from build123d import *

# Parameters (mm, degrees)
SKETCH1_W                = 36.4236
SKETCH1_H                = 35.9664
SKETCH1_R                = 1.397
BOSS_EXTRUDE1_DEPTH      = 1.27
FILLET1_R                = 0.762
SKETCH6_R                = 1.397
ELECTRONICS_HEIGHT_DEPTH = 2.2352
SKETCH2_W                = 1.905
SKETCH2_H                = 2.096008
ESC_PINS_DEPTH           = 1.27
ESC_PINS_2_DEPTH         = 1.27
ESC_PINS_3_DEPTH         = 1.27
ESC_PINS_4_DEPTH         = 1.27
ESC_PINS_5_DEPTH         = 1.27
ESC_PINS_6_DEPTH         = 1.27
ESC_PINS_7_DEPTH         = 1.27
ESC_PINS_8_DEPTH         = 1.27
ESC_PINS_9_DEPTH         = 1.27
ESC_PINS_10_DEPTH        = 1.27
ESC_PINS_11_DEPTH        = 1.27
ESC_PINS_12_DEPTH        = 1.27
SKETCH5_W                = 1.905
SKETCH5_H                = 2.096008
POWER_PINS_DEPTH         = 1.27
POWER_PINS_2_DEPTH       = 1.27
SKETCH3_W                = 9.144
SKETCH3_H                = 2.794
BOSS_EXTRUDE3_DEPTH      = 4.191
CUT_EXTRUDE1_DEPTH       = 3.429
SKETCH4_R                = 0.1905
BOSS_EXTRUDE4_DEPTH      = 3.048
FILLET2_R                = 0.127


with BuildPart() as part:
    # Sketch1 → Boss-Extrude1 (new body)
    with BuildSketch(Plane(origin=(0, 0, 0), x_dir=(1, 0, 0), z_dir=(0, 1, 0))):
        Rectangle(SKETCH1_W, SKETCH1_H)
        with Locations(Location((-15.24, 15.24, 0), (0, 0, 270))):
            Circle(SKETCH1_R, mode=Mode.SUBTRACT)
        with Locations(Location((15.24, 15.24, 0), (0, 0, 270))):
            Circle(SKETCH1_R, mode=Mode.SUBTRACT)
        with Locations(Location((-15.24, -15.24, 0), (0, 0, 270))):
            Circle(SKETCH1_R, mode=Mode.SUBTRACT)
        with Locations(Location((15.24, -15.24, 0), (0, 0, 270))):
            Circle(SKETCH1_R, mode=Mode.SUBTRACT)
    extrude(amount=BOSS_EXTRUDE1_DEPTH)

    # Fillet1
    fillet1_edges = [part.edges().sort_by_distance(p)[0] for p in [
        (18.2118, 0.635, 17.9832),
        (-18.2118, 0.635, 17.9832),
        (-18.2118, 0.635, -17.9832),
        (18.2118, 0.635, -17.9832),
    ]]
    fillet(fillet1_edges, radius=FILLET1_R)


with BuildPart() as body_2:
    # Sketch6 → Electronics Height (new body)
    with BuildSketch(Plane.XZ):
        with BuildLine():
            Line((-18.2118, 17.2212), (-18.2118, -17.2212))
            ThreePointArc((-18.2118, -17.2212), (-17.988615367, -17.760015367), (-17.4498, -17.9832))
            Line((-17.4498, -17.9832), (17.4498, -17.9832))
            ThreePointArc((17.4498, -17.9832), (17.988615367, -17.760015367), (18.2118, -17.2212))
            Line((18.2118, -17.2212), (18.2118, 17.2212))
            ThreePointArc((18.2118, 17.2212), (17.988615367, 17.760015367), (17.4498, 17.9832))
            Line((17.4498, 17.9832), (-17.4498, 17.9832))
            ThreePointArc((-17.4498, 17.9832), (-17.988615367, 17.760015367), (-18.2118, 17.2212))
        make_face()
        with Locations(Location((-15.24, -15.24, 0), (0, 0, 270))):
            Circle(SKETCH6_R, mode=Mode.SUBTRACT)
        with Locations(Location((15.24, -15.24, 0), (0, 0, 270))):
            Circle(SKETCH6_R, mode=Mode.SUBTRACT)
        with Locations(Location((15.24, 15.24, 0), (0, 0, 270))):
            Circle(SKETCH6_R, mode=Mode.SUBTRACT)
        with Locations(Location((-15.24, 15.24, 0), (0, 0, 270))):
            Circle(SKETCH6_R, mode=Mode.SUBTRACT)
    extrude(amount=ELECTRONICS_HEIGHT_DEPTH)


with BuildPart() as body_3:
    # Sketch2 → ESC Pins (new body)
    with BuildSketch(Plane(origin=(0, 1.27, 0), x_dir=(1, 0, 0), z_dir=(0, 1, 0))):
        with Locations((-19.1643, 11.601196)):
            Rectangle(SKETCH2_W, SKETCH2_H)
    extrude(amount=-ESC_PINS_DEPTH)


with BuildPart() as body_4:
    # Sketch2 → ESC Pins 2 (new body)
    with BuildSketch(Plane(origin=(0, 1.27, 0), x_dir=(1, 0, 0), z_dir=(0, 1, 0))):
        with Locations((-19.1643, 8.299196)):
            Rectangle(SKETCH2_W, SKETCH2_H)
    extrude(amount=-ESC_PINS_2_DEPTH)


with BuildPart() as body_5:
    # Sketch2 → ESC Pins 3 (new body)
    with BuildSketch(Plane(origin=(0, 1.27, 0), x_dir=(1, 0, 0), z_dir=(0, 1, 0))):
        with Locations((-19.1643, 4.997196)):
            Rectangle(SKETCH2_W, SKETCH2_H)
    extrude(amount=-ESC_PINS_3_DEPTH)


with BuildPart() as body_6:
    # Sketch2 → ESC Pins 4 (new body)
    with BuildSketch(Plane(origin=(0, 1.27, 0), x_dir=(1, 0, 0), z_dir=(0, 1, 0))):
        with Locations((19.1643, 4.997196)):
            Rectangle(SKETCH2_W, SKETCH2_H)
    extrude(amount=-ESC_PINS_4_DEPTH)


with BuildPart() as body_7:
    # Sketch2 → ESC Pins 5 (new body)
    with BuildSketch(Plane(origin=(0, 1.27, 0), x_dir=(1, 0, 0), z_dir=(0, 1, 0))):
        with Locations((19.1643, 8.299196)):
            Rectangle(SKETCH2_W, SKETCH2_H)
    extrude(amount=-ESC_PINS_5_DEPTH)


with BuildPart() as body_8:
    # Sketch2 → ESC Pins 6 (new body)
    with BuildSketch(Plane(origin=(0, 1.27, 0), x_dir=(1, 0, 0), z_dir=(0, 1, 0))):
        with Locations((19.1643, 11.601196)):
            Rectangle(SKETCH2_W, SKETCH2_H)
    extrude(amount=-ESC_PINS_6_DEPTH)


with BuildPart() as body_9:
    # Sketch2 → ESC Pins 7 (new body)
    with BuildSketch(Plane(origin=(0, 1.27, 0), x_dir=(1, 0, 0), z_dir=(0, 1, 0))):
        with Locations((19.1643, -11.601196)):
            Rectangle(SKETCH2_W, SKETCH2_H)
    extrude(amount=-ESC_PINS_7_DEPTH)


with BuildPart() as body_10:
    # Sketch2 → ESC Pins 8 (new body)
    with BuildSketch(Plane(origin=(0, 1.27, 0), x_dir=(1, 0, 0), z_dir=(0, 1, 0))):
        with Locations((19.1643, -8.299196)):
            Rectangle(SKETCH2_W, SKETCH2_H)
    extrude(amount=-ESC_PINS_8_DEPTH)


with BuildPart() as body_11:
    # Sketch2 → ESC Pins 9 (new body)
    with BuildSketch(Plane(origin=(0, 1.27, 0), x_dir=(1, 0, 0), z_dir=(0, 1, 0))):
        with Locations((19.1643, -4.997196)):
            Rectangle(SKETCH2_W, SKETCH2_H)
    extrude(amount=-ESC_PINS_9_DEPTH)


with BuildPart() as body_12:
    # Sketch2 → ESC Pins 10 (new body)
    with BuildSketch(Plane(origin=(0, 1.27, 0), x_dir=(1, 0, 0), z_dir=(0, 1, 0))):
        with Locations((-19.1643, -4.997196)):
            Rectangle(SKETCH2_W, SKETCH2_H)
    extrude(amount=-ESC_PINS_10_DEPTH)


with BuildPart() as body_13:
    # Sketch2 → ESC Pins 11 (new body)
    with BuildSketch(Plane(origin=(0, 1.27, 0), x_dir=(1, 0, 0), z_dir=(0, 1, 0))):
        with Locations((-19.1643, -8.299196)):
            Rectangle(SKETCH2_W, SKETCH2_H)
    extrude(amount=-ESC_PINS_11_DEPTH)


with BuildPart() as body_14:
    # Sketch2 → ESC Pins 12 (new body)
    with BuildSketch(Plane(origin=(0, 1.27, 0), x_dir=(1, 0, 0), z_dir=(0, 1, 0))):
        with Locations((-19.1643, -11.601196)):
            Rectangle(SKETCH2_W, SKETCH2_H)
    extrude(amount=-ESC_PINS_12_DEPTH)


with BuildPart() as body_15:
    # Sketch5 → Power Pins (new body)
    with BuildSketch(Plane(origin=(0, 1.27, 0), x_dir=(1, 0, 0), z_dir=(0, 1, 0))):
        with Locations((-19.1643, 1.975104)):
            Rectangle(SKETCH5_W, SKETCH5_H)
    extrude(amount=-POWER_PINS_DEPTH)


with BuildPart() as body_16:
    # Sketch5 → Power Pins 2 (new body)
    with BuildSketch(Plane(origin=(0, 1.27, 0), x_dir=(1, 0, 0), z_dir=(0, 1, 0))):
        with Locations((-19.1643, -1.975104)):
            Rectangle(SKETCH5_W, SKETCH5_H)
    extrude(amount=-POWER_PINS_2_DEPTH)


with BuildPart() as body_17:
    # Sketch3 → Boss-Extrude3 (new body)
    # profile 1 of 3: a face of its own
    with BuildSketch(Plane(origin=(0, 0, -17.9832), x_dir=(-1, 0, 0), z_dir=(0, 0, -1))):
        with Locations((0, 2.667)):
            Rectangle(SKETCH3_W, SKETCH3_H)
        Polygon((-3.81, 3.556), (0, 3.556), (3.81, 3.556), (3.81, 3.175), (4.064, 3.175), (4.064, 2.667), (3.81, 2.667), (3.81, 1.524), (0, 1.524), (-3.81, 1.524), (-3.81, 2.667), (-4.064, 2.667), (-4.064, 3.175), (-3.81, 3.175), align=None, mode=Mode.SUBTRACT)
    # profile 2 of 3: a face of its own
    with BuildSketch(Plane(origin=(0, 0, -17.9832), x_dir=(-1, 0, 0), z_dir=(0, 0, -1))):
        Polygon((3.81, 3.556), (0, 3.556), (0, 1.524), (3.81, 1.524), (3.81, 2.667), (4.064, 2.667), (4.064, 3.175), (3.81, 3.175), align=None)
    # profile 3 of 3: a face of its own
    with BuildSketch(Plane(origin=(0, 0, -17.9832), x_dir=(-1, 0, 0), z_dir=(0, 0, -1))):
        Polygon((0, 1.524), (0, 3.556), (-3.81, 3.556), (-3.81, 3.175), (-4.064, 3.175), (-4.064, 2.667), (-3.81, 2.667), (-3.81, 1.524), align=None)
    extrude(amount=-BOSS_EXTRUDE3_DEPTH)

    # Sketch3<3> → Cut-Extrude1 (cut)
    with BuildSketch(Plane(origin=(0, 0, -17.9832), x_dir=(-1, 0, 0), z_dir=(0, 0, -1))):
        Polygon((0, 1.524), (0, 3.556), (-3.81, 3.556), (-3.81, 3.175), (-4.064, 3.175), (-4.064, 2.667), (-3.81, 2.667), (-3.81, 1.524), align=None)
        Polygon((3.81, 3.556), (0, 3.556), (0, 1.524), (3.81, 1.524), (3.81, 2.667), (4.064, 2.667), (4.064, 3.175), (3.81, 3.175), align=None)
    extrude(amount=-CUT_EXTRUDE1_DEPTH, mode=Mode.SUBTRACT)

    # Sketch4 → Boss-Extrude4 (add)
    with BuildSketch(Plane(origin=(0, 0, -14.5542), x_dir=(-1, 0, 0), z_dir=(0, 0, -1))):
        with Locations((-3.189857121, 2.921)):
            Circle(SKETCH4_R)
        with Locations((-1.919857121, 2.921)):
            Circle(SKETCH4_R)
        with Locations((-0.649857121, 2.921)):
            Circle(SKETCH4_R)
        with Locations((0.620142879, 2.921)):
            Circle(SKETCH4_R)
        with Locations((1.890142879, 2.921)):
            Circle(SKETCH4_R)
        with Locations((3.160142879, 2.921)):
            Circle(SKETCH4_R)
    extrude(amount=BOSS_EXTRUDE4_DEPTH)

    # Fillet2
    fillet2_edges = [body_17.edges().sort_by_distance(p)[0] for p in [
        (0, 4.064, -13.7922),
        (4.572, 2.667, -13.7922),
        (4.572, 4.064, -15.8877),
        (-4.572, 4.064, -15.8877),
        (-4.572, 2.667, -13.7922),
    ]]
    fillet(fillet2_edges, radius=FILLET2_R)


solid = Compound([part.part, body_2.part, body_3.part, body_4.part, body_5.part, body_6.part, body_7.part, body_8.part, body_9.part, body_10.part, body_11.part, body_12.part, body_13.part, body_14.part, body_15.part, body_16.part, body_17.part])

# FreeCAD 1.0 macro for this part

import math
import FreeCAD as App
import Part
import Sketcher
Q = App.Units.Quantity


def edges_at(feature, points):
    """Names of the edges that pass closest to the given points."""
    edges = feature.Shape.Edges
    near = lambda p: min(range(len(edges)), key=lambda i: edges[i].distToShape(Part.Vertex(*p))[0])
    return sorted({f"Edge{near(p) + 1}" for p in points})


def add_polygon(sketch, points):
    """Adds a closed chain of lines whose ends are joined by coincident constraints."""
    first, n = sketch.GeometryCount, len(points)
    for a, b in zip(points, points[1:] + points[:1]):
        sketch.addGeometry(Part.LineSegment(App.Vector(*a, 0), App.Vector(*b, 0)), False)
    for i in range(n):
        sketch.addConstraint(Sketcher.Constraint("Coincident", first + i, 2, first + (i + 1) % n, 1))

doc = App.newDocument("Part")
body = doc.addObject("PartDesign::Body", "Body")

# Sketch on XZ plane
sketch1 = body.newObject("Sketcher::SketchObject", "Sketch")
sketch1.AttachmentSupport = (doc.getObject("XZ_Plane"), [""])
sketch1.MapMode = "FlatFace"
add_polygon(sketch1, [(-18.2, -18), (-18.2, 18), (18.2, 18), (18.2, -18)])  # lines 0-3
sketch1.addGeometry(Part.Circle(App.Vector(-15.2, 15.2, 0), App.Vector(0, 0, 1), 1.4), False)  # 4
sketch1.addGeometry(Part.Circle(App.Vector(15.2, 15.2, 0), App.Vector(0, 0, 1), 1.4), False)  # 5
sketch1.addGeometry(Part.Circle(App.Vector(-15.2, -15.2, 0), App.Vector(0, 0, 1), 1.4), False)  # 6
sketch1.addGeometry(Part.Circle(App.Vector(15.2, -15.2, 0), App.Vector(0, 0, 1), 1.4), False)  # 7
sketch1.addConstraint(Sketcher.Constraint("Vertical", 0))
sketch1.addConstraint(Sketcher.Constraint("Horizontal", 1))
sketch1.addConstraint(Sketcher.Constraint("Vertical", 2))
sketch1.addConstraint(Sketcher.Constraint("Horizontal", 3))
sketch1.addConstraint(Sketcher.Constraint("Equal", 4, 5))
sketch1.addConstraint(Sketcher.Constraint("Equal", 5, 6))
sketch1.addConstraint(Sketcher.Constraint("Equal", 6, 7))
sketch1.addConstraint(Sketcher.Constraint("Symmetric", 5, 3, 6, 3, -1, 1))
sketch1.addConstraint(Sketcher.Constraint("Symmetric", 4, 3, 7, 3, -1, 1))
sketch1.addConstraint(Sketcher.Constraint("Symmetric", 0, 2, 2, 2, -1, 1))
sketch1.addConstraint(Sketcher.Constraint("Symmetric", 4, 3, 5, 3, -2))
sketch1.addConstraint(Sketcher.Constraint("Diameter", 4, Q("0.11 in")))
sketch1.addConstraint(Sketcher.Constraint("DistanceX", 4, 3, -1, 1, Q("0.6 in")))
sketch1.addConstraint(Sketcher.Constraint("DistanceY", -1, 1, 4, 3, Q("0.6 in")))
sketch1.addConstraint(Sketcher.Constraint("DistanceX", 1, 1, 1, 2, Q("1.434 in")))
sketch1.addConstraint(Sketcher.Constraint("DistanceY", 0, 1, 0, 2, Q("1.416 in")))
pad1 = body.newObject("PartDesign::Pad", "Pad")
pad1.Profile = sketch1
pad1.Length = Q("0.05 in")
pad1.Reversed = True
doc.recompute()

fillet = body.newObject("PartDesign::Fillet", "Fillet")
fillet.Base = (pad1, edges_at(pad1, [
    (18.212, 0.635, 17.983),
    (-18.212, 0.635, 17.983),
    (-18.212, 0.635, -17.983),
    (18.212, 0.635, -17.983),
]))
fillet.Radius = Q("0.03 in")
body2 = doc.addObject("PartDesign::Body", "Body001")

# Sketch on XZ plane
sketch2 = body2.newObject("Sketcher::SketchObject", "Sketch001")
sketch2.AttachmentSupport = (doc.getObject("XZ_Plane001"), [""])
sketch2.MapMode = "FlatFace"
sketch2.addGeometry(Part.LineSegment(App.Vector(-18.2, 17.2, 0), App.Vector(-18.2, -17.2, 0)), False)
sketch2.addGeometry(Part.ArcOfCircle(Part.Circle(App.Vector(-17.4, -17.2, 0), App.Vector(0, 0, 1), 0.8), math.radians(-180), math.radians(-90)), False)
sketch2.addGeometry(Part.LineSegment(App.Vector(-17.4, -18, 0), App.Vector(17.4, -18, 0)), False)
sketch2.addGeometry(Part.ArcOfCircle(Part.Circle(App.Vector(17.4, -17.2, 0), App.Vector(0, 0, 1), 0.8), math.radians(-90), math.radians(0)), False)
sketch2.addGeometry(Part.LineSegment(App.Vector(18.2, -17.2, 0), App.Vector(18.2, 17.2, 0)), False)
sketch2.addGeometry(Part.ArcOfCircle(Part.Circle(App.Vector(17.4, 17.2, 0), App.Vector(0, 0, 1), 0.8), math.radians(0), math.radians(90)), False)
sketch2.addGeometry(Part.LineSegment(App.Vector(17.4, 18, 0), App.Vector(-17.4, 18, 0)), False)
sketch2.addGeometry(Part.ArcOfCircle(Part.Circle(App.Vector(-17.4, 17.2, 0), App.Vector(0, 0, 1), 0.8), math.radians(90), math.radians(180)), False)
sketch2.addGeometry(Part.Circle(App.Vector(-15.2, -15.2, 0), App.Vector(0, 0, 1), 1.4), False)
sketch2.addGeometry(Part.Circle(App.Vector(15.2, -15.2, 0), App.Vector(0, 0, 1), 1.4), False)
sketch2.addGeometry(Part.Circle(App.Vector(-15.2, 15.2, 0), App.Vector(0, 0, 1), 1.4), False)
sketch2.addGeometry(Part.Circle(App.Vector(15.2, 15.2, 0), App.Vector(0, 0, 1), 1.4), False)
sketch2.addConstraint(Sketcher.Constraint("Tangent", 0, 2, 1, 1))
sketch2.addConstraint(Sketcher.Constraint("Tangent", 1, 2, 2, 1))
sketch2.addConstraint(Sketcher.Constraint("Tangent", 2, 2, 3, 1))
sketch2.addConstraint(Sketcher.Constraint("Tangent", 3, 2, 4, 1))
sketch2.addConstraint(Sketcher.Constraint("Tangent", 4, 2, 5, 1))
sketch2.addConstraint(Sketcher.Constraint("Tangent", 5, 2, 6, 1))
sketch2.addConstraint(Sketcher.Constraint("Tangent", 6, 2, 7, 1))
sketch2.addConstraint(Sketcher.Constraint("Tangent", 7, 2, 0, 1))
sketch2.addConstraint(Sketcher.Constraint("Vertical", 0))
sketch2.addConstraint(Sketcher.Constraint("Horizontal", 2))
sketch2.addConstraint(Sketcher.Constraint("Vertical", 4))
sketch2.addConstraint(Sketcher.Constraint("Horizontal", 6))
sketch2.addConstraint(Sketcher.Constraint("Equal", 1, 3))
sketch2.addConstraint(Sketcher.Constraint("Equal", 3, 5))
sketch2.addConstraint(Sketcher.Constraint("Equal", 5, 7))
sketch2.addConstraint(Sketcher.Constraint("Equal", 8, 9))
sketch2.addConstraint(Sketcher.Constraint("Equal", 9, 10))
sketch2.addConstraint(Sketcher.Constraint("Equal", 10, 11))
sketch2.addConstraint(Sketcher.Constraint("Symmetric", 1, 3, 5, 3, -1, 1))
sketch2.addConstraint(Sketcher.Constraint("Symmetric", 9, 3, 10, 3, -1, 1))
sketch2.addConstraint(Sketcher.Constraint("Symmetric", 8, 3, 11, 3, -1, 1))
sketch2.addConstraint(Sketcher.Constraint("Symmetric", 8, 3, 9, 3, -2))
sketch2.addConstraint(Sketcher.Constraint("Diameter", 8, Q("0.11 in")))
sketch2.addConstraint(Sketcher.Constraint("Radius", 1, Q("0.03 in")))
sketch2.addConstraint(Sketcher.Constraint("DistanceX", 8, 3, -1, 1, Q("0.6 in")))
sketch2.addConstraint(Sketcher.Constraint("DistanceY", 8, 3, -1, 1, Q("0.6 in")))
sketch2.addConstraint(Sketcher.Constraint("DistanceX", 2, 1, 2, 2, Q("1.374 in")))
sketch2.addConstraint(Sketcher.Constraint("DistanceY", 0, 2, 0, 1, Q("1.356 in")))
pad2 = body2.newObject("PartDesign::Pad", "Pad001")
pad2.Profile = sketch2
pad2.Length = Q("0.088 in")
body3 = doc.addObject("PartDesign::Body", "Body002")

# Sketch on XZ plane
sketch3 = body3.newObject("Sketcher::SketchObject", "Sketch002")
sketch3.AttachmentSupport = (doc.getObject("XZ_Plane002"), [""])
sketch3.MapMode = "FlatFace"
sketch3.AttachmentOffset = App.Placement(App.Vector(0, 0, -0.05 * 25.4), App.Rotation())
add_polygon(sketch3, [(-20.1, -12.6), (-20.1, -10.6), (-18.2, -10.6), (-18.2, -12.6)])  # lines 0-3
sketch3.addConstraint(Sketcher.Constraint("Vertical", 0))
sketch3.addConstraint(Sketcher.Constraint("Horizontal", 1))
sketch3.addConstraint(Sketcher.Constraint("Vertical", 2))
sketch3.addConstraint(Sketcher.Constraint("Horizontal", 3))
sketch3.addConstraint(Sketcher.Constraint("DistanceX", 1, 1, 1, 2, Q("0.075 in")))
sketch3.addConstraint(Sketcher.Constraint("DistanceX", 0, 2, -1, 1, Q("0.792 in")))
sketch3.addConstraint(Sketcher.Constraint("DistanceY", 2, 2, -1, 1, Q("0.498 in")))
sketch3.addConstraint(Sketcher.Constraint("DistanceY", 0, 1, 0, 2, 2.096008))
pad3 = body3.newObject("PartDesign::Pad", "Pad002")
pad3.Profile = sketch3
pad3.Length = Q("0.05 in")
body4 = doc.addObject("PartDesign::Body", "Body003")

# Sketch on XZ plane
sketch4 = body4.newObject("Sketcher::SketchObject", "Sketch003")
sketch4.AttachmentSupport = (doc.getObject("XZ_Plane003"), [""])
sketch4.MapMode = "FlatFace"
sketch4.AttachmentOffset = App.Placement(App.Vector(0, 0, -0.05 * 25.4), App.Rotation())
add_polygon(sketch4, [(-20.1, -9.3), (-20.1, -7.3), (-18.2, -7.3), (-18.2, -9.3)])  # lines 0-3
sketch4.addConstraint(Sketcher.Constraint("Vertical", 0))
sketch4.addConstraint(Sketcher.Constraint("Horizontal", 1))
sketch4.addConstraint(Sketcher.Constraint("Vertical", 2))
sketch4.addConstraint(Sketcher.Constraint("Horizontal", 3))
sketch4.addConstraint(Sketcher.Constraint("DistanceX", 1, 1, 1, 2, Q("0.075 in")))
sketch4.addConstraint(Sketcher.Constraint("DistanceX", 0, 2, -1, 1, Q("0.792 in")))
sketch4.addConstraint(Sketcher.Constraint("DistanceY", 2, 2, -1, 1, Q("0.368 in")))
sketch4.addConstraint(Sketcher.Constraint("DistanceY", 0, 1, 0, 2, 2.096008))
pad4 = body4.newObject("PartDesign::Pad", "Pad003")
pad4.Profile = sketch4
pad4.Length = Q("0.05 in")
body5 = doc.addObject("PartDesign::Body", "Body004")

# Sketch on XZ plane
sketch5 = body5.newObject("Sketcher::SketchObject", "Sketch004")
sketch5.AttachmentSupport = (doc.getObject("XZ_Plane004"), [""])
sketch5.MapMode = "FlatFace"
sketch5.AttachmentOffset = App.Placement(App.Vector(0, 0, -0.05 * 25.4), App.Rotation())
add_polygon(sketch5, [(-20.1, -6), (-20.1, -3.9), (-18.2, -3.9), (-18.2, -6)])  # lines 0-3
sketch5.addConstraint(Sketcher.Constraint("Vertical", 0))
sketch5.addConstraint(Sketcher.Constraint("Horizontal", 1))
sketch5.addConstraint(Sketcher.Constraint("Vertical", 2))
sketch5.addConstraint(Sketcher.Constraint("Horizontal", 3))
sketch5.addConstraint(Sketcher.Constraint("DistanceX", 1, 1, 1, 2, Q("0.075 in")))
sketch5.addConstraint(Sketcher.Constraint("DistanceX", 0, 2, -1, 1, Q("0.792 in")))
sketch5.addConstraint(Sketcher.Constraint("DistanceY", 2, 2, -1, 1, Q("0.238 in")))
sketch5.addConstraint(Sketcher.Constraint("DistanceY", 0, 1, 0, 2, 2.096008))
pad5 = body5.newObject("PartDesign::Pad", "Pad004")
pad5.Profile = sketch5
pad5.Length = Q("0.05 in")
body6 = doc.addObject("PartDesign::Body", "Body005")

# Sketch on XZ plane
sketch6 = body6.newObject("Sketcher::SketchObject", "Sketch005")
sketch6.AttachmentSupport = (doc.getObject("XZ_Plane005"), [""])
sketch6.MapMode = "FlatFace"
sketch6.AttachmentOffset = App.Placement(App.Vector(0, 0, -0.05 * 25.4), App.Rotation())
add_polygon(sketch6, [(18.2, -6), (18.2, -3.9), (20.1, -3.9), (20.1, -6)])  # lines 0-3
sketch6.addConstraint(Sketcher.Constraint("Vertical", 0))
sketch6.addConstraint(Sketcher.Constraint("Horizontal", 1))
sketch6.addConstraint(Sketcher.Constraint("Vertical", 2))
sketch6.addConstraint(Sketcher.Constraint("Horizontal", 3))
sketch6.addConstraint(Sketcher.Constraint("DistanceX", 1, 1, 1, 2, Q("0.075 in")))
sketch6.addConstraint(Sketcher.Constraint("DistanceX", -1, 1, 0, 2, Q("0.717 in")))
sketch6.addConstraint(Sketcher.Constraint("DistanceY", 2, 2, -1, 1, Q("0.238 in")))
sketch6.addConstraint(Sketcher.Constraint("DistanceY", 0, 1, 0, 2, 2.096008))
pad6 = body6.newObject("PartDesign::Pad", "Pad005")
pad6.Profile = sketch6
pad6.Length = Q("0.05 in")
body7 = doc.addObject("PartDesign::Body", "Body006")

# Sketch on XZ plane
sketch7 = body7.newObject("Sketcher::SketchObject", "Sketch006")
sketch7.AttachmentSupport = (doc.getObject("XZ_Plane006"), [""])
sketch7.MapMode = "FlatFace"
sketch7.AttachmentOffset = App.Placement(App.Vector(0, 0, -0.05 * 25.4), App.Rotation())
add_polygon(sketch7, [(18.2, -9.3), (18.2, -7.3), (20.1, -7.3), (20.1, -9.3)])  # lines 0-3
sketch7.addConstraint(Sketcher.Constraint("Vertical", 0))
sketch7.addConstraint(Sketcher.Constraint("Horizontal", 1))
sketch7.addConstraint(Sketcher.Constraint("Vertical", 2))
sketch7.addConstraint(Sketcher.Constraint("Horizontal", 3))
sketch7.addConstraint(Sketcher.Constraint("DistanceX", 1, 1, 1, 2, Q("0.075 in")))
sketch7.addConstraint(Sketcher.Constraint("DistanceX", -1, 1, 0, 2, Q("0.717 in")))
sketch7.addConstraint(Sketcher.Constraint("DistanceY", 2, 2, -1, 1, Q("0.368 in")))
sketch7.addConstraint(Sketcher.Constraint("DistanceY", 0, 1, 0, 2, 2.096008))
pad7 = body7.newObject("PartDesign::Pad", "Pad006")
pad7.Profile = sketch7
pad7.Length = Q("0.05 in")
body8 = doc.addObject("PartDesign::Body", "Body007")

# Sketch on XZ plane
sketch8 = body8.newObject("Sketcher::SketchObject", "Sketch007")
sketch8.AttachmentSupport = (doc.getObject("XZ_Plane007"), [""])
sketch8.MapMode = "FlatFace"
sketch8.AttachmentOffset = App.Placement(App.Vector(0, 0, -0.05 * 25.4), App.Rotation())
add_polygon(sketch8, [(18.2, -12.6), (18.2, -10.6), (20.1, -10.6), (20.1, -12.6)])  # lines 0-3
sketch8.addConstraint(Sketcher.Constraint("Vertical", 0))
sketch8.addConstraint(Sketcher.Constraint("Horizontal", 1))
sketch8.addConstraint(Sketcher.Constraint("Vertical", 2))
sketch8.addConstraint(Sketcher.Constraint("Horizontal", 3))
sketch8.addConstraint(Sketcher.Constraint("DistanceX", 1, 1, 1, 2, Q("0.075 in")))
sketch8.addConstraint(Sketcher.Constraint("DistanceX", -1, 1, 0, 2, Q("0.717 in")))
sketch8.addConstraint(Sketcher.Constraint("DistanceY", 2, 2, -1, 1, Q("0.498 in")))
sketch8.addConstraint(Sketcher.Constraint("DistanceY", 0, 1, 0, 2, 2.096008))
pad8 = body8.newObject("PartDesign::Pad", "Pad007")
pad8.Profile = sketch8
pad8.Length = Q("0.05 in")
body9 = doc.addObject("PartDesign::Body", "Body008")

# Sketch on XZ plane
sketch9 = body9.newObject("Sketcher::SketchObject", "Sketch008")
sketch9.AttachmentSupport = (doc.getObject("XZ_Plane008"), [""])
sketch9.MapMode = "FlatFace"
sketch9.AttachmentOffset = App.Placement(App.Vector(0, 0, -0.05 * 25.4), App.Rotation())
add_polygon(sketch9, [(18.2, 10.6), (18.2, 12.6), (20.1, 12.6), (20.1, 10.6)])  # lines 0-3
sketch9.addConstraint(Sketcher.Constraint("Vertical", 0))
sketch9.addConstraint(Sketcher.Constraint("Horizontal", 1))
sketch9.addConstraint(Sketcher.Constraint("Vertical", 2))
sketch9.addConstraint(Sketcher.Constraint("Horizontal", 3))
sketch9.addConstraint(Sketcher.Constraint("DistanceX", 1, 1, 1, 2, Q("0.075 in")))
sketch9.addConstraint(Sketcher.Constraint("DistanceX", -1, 1, 0, 2, Q("0.717 in")))
sketch9.addConstraint(Sketcher.Constraint("DistanceY", -1, 1, 0, 2, Q("0.498 in")))
sketch9.addConstraint(Sketcher.Constraint("DistanceY", 0, 1, 0, 2, 2.096008))
pad9 = body9.newObject("PartDesign::Pad", "Pad008")
pad9.Profile = sketch9
pad9.Length = Q("0.05 in")
body10 = doc.addObject("PartDesign::Body", "Body009")

# Sketch on XZ plane
sketch10 = body10.newObject("Sketcher::SketchObject", "Sketch009")
sketch10.AttachmentSupport = (doc.getObject("XZ_Plane009"), [""])
sketch10.MapMode = "FlatFace"
sketch10.AttachmentOffset = App.Placement(App.Vector(0, 0, -0.05 * 25.4), App.Rotation())
add_polygon(sketch10, [(18.2, 7.3), (18.2, 9.3), (20.1, 9.3), (20.1, 7.3)])  # lines 0-3
sketch10.addConstraint(Sketcher.Constraint("Vertical", 0))
sketch10.addConstraint(Sketcher.Constraint("Horizontal", 1))
sketch10.addConstraint(Sketcher.Constraint("Vertical", 2))
sketch10.addConstraint(Sketcher.Constraint("Horizontal", 3))
sketch10.addConstraint(Sketcher.Constraint("DistanceX", 1, 1, 1, 2, Q("0.075 in")))
sketch10.addConstraint(Sketcher.Constraint("DistanceX", -1, 1, 0, 2, Q("0.717 in")))
sketch10.addConstraint(Sketcher.Constraint("DistanceY", -1, 1, 0, 2, Q("0.368 in")))
sketch10.addConstraint(Sketcher.Constraint("DistanceY", 0, 1, 0, 2, 2.096008))
pad10 = body10.newObject("PartDesign::Pad", "Pad009")
pad10.Profile = sketch10
pad10.Length = Q("0.05 in")
body11 = doc.addObject("PartDesign::Body", "Body010")

# Sketch on XZ plane
sketch11 = body11.newObject("Sketcher::SketchObject", "Sketch010")
sketch11.AttachmentSupport = (doc.getObject("XZ_Plane010"), [""])
sketch11.MapMode = "FlatFace"
sketch11.AttachmentOffset = App.Placement(App.Vector(0, 0, -0.05 * 25.4), App.Rotation())
add_polygon(sketch11, [(18.2, 3.9), (18.2, 6), (20.1, 6), (20.1, 3.9)])  # lines 0-3
sketch11.addConstraint(Sketcher.Constraint("Vertical", 0))
sketch11.addConstraint(Sketcher.Constraint("Horizontal", 1))
sketch11.addConstraint(Sketcher.Constraint("Vertical", 2))
sketch11.addConstraint(Sketcher.Constraint("Horizontal", 3))
sketch11.addConstraint(Sketcher.Constraint("DistanceX", 1, 1, 1, 2, Q("0.075 in")))
sketch11.addConstraint(Sketcher.Constraint("DistanceX", -1, 1, 0, 2, Q("0.717 in")))
sketch11.addConstraint(Sketcher.Constraint("DistanceY", -1, 1, 0, 2, Q("0.238 in")))
sketch11.addConstraint(Sketcher.Constraint("DistanceY", 0, 1, 0, 2, 2.096008))
pad11 = body11.newObject("PartDesign::Pad", "Pad010")
pad11.Profile = sketch11
pad11.Length = Q("0.05 in")
body12 = doc.addObject("PartDesign::Body", "Body011")

# Sketch on XZ plane
sketch12 = body12.newObject("Sketcher::SketchObject", "Sketch011")
sketch12.AttachmentSupport = (doc.getObject("XZ_Plane011"), [""])
sketch12.MapMode = "FlatFace"
sketch12.AttachmentOffset = App.Placement(App.Vector(0, 0, -0.05 * 25.4), App.Rotation())
add_polygon(sketch12, [(-20.1, 3.9), (-20.1, 6), (-18.2, 6), (-18.2, 3.9)])  # lines 0-3
sketch12.addConstraint(Sketcher.Constraint("Vertical", 0))
sketch12.addConstraint(Sketcher.Constraint("Horizontal", 1))
sketch12.addConstraint(Sketcher.Constraint("Vertical", 2))
sketch12.addConstraint(Sketcher.Constraint("Horizontal", 3))
sketch12.addConstraint(Sketcher.Constraint("DistanceX", 1, 1, 1, 2, Q("0.075 in")))
sketch12.addConstraint(Sketcher.Constraint("DistanceX", 0, 2, -1, 1, Q("0.792 in")))
sketch12.addConstraint(Sketcher.Constraint("DistanceY", -1, 1, 0, 2, Q("0.238 in")))
sketch12.addConstraint(Sketcher.Constraint("DistanceY", 0, 1, 0, 2, 2.096008))
pad12 = body12.newObject("PartDesign::Pad", "Pad011")
pad12.Profile = sketch12
pad12.Length = Q("0.05 in")
body13 = doc.addObject("PartDesign::Body", "Body012")

# Sketch on XZ plane
sketch13 = body13.newObject("Sketcher::SketchObject", "Sketch012")
sketch13.AttachmentSupport = (doc.getObject("XZ_Plane012"), [""])
sketch13.MapMode = "FlatFace"
sketch13.AttachmentOffset = App.Placement(App.Vector(0, 0, -0.05 * 25.4), App.Rotation())
add_polygon(sketch13, [(-20.1, 7.3), (-20.1, 9.3), (-18.2, 9.3), (-18.2, 7.3)])  # lines 0-3
sketch13.addConstraint(Sketcher.Constraint("Vertical", 0))
sketch13.addConstraint(Sketcher.Constraint("Horizontal", 1))
sketch13.addConstraint(Sketcher.Constraint("Vertical", 2))
sketch13.addConstraint(Sketcher.Constraint("Horizontal", 3))
sketch13.addConstraint(Sketcher.Constraint("DistanceX", 1, 1, 1, 2, Q("0.075 in")))
sketch13.addConstraint(Sketcher.Constraint("DistanceX", 0, 2, -1, 1, Q("0.792 in")))
sketch13.addConstraint(Sketcher.Constraint("DistanceY", -1, 1, 0, 2, Q("0.368 in")))
sketch13.addConstraint(Sketcher.Constraint("DistanceY", 0, 1, 0, 2, 2.096008))
pad13 = body13.newObject("PartDesign::Pad", "Pad012")
pad13.Profile = sketch13
pad13.Length = Q("0.05 in")
body14 = doc.addObject("PartDesign::Body", "Body013")

# Sketch on XZ plane
sketch14 = body14.newObject("Sketcher::SketchObject", "Sketch013")
sketch14.AttachmentSupport = (doc.getObject("XZ_Plane013"), [""])
sketch14.MapMode = "FlatFace"
sketch14.AttachmentOffset = App.Placement(App.Vector(0, 0, -0.05 * 25.4), App.Rotation())
add_polygon(sketch14, [(-20.1, 10.6), (-20.1, 12.6), (-18.2, 12.6), (-18.2, 10.6)])  # lines 0-3
sketch14.addConstraint(Sketcher.Constraint("Vertical", 0))
sketch14.addConstraint(Sketcher.Constraint("Horizontal", 1))
sketch14.addConstraint(Sketcher.Constraint("Vertical", 2))
sketch14.addConstraint(Sketcher.Constraint("Horizontal", 3))
sketch14.addConstraint(Sketcher.Constraint("DistanceX", 1, 1, 1, 2, Q("0.075 in")))
sketch14.addConstraint(Sketcher.Constraint("DistanceX", 0, 2, -1, 1, Q("0.792 in")))
sketch14.addConstraint(Sketcher.Constraint("DistanceY", -1, 1, 0, 2, Q("0.498 in")))
sketch14.addConstraint(Sketcher.Constraint("DistanceY", 0, 1, 0, 2, 2.096008))
pad14 = body14.newObject("PartDesign::Pad", "Pad013")
pad14.Profile = sketch14
pad14.Length = Q("0.05 in")
body15 = doc.addObject("PartDesign::Body", "Body014")

# Sketch on XZ plane
sketch15 = body15.newObject("Sketcher::SketchObject", "Sketch014")
sketch15.AttachmentSupport = (doc.getObject("XZ_Plane014"), [""])
sketch15.MapMode = "FlatFace"
sketch15.AttachmentOffset = App.Placement(App.Vector(0, 0, -0.05 * 25.4), App.Rotation())
add_polygon(sketch15, [(-20.1, -3), (-20.1, -0.9), (-18.2, -0.9), (-18.2, -3)])  # lines 0-3
sketch15.addConstraint(Sketcher.Constraint("Vertical", 0))
sketch15.addConstraint(Sketcher.Constraint("Horizontal", 1))
sketch15.addConstraint(Sketcher.Constraint("Vertical", 2))
sketch15.addConstraint(Sketcher.Constraint("Horizontal", 3))
sketch15.addConstraint(Sketcher.Constraint("DistanceX", 1, 1, 1, 2, Q("0.075 in")))
sketch15.addConstraint(Sketcher.Constraint("DistanceX", 0, 2, -1, 1, Q("0.792 in")))
sketch15.addConstraint(Sketcher.Constraint("DistanceY", 0, 2, -1, 1, Q("0.0365 in")))
sketch15.addConstraint(Sketcher.Constraint("DistanceY", 0, 1, 0, 2, 2.096008))
pad15 = body15.newObject("PartDesign::Pad", "Pad014")
pad15.Profile = sketch15
pad15.Length = Q("0.05 in")
body16 = doc.addObject("PartDesign::Body", "Body015")

# Sketch on XZ plane
sketch16 = body16.newObject("Sketcher::SketchObject", "Sketch015")
sketch16.AttachmentSupport = (doc.getObject("XZ_Plane015"), [""])
sketch16.MapMode = "FlatFace"
sketch16.AttachmentOffset = App.Placement(App.Vector(0, 0, -0.05 * 25.4), App.Rotation())
add_polygon(sketch16, [(-20.1, 0.9), (-20.1, 3), (-18.2, 3), (-18.2, 0.9)])  # lines 0-3
sketch16.addConstraint(Sketcher.Constraint("Vertical", 0))
sketch16.addConstraint(Sketcher.Constraint("Horizontal", 1))
sketch16.addConstraint(Sketcher.Constraint("Vertical", 2))
sketch16.addConstraint(Sketcher.Constraint("Horizontal", 3))
sketch16.addConstraint(Sketcher.Constraint("DistanceX", 1, 1, 1, 2, Q("0.075 in")))
sketch16.addConstraint(Sketcher.Constraint("DistanceX", 0, 2, -1, 1, Q("0.792 in")))
sketch16.addConstraint(Sketcher.Constraint("DistanceY", -1, 1, 2, 2, Q("0.0365 in")))
sketch16.addConstraint(Sketcher.Constraint("DistanceY", 0, 1, 0, 2, 2.096008))
pad16 = body16.newObject("PartDesign::Pad", "Pad015")
pad16.Profile = sketch16
pad16.Length = Q("0.05 in")
body17 = doc.addObject("PartDesign::Body", "Body016")

# Sketch on XY plane
sketch17 = body17.newObject("Sketcher::SketchObject", "Sketch016")
sketch17.AttachmentSupport = (doc.getObject("XY_Plane016"), [""])
sketch17.MapMode = "FlatFace"
sketch17.AttachmentOffset = App.Placement(App.Vector(0, 0, -0.708 * 25.4), App.Rotation())
add_polygon(sketch17, [(4.6, 4.1), (4.6, 1.3), (-4.6, 1.3), (-4.6, 4.1)])  # lines 0-3
sketch17.addConstraint(Sketcher.Constraint("Vertical", 0))
sketch17.addConstraint(Sketcher.Constraint("Horizontal", 1))
sketch17.addConstraint(Sketcher.Constraint("Vertical", 2))
sketch17.addConstraint(Sketcher.Constraint("Horizontal", 3))
sketch17.addConstraint(Sketcher.Constraint("DistanceX", 1, 2, 1, 1, Q("0.36 in")))
sketch17.addConstraint(Sketcher.Constraint("DistanceY", 0, 2, 0, 1, Q("0.11 in")))
sketch17.addConstraint(Sketcher.Constraint("DistanceX", -1, 1, 0, 2, Q("0.18 in")))
sketch17.addConstraint(Sketcher.Constraint("DistanceY", -1, 1, 0, 2, Q("0.05 in")))
pad17 = body17.newObject("PartDesign::Pad", "Pad016")
pad17.Profile = sketch17
pad17.Length = Q("0.165 in")

# Sketch on XY plane
sketch18 = body17.newObject("Sketcher::SketchObject", "Sketch017")
sketch18.AttachmentSupport = (doc.getObject("XY_Plane016"), [""])
sketch18.MapMode = "FlatFace"
sketch18.AttachmentOffset = App.Placement(App.Vector(0, 0, -0.708 * 25.4), App.Rotation())
add_polygon(sketch18, [(3.81, 3.56), (3.81, 3.17), (4.06, 3.17), (4.06, 2.67), (3.81, 2.67), (3.81, 1.52), (-3.81, 1.52), (-3.81, 2.67), (-4.06, 2.67), (-4.06, 3.17), (-3.81, 3.17), (-3.81, 3.56)])  # lines 0-11
sketch18.addConstraint(Sketcher.Constraint("Vertical", 0))
sketch18.addConstraint(Sketcher.Constraint("Horizontal", 1))
sketch18.addConstraint(Sketcher.Constraint("Vertical", 2))
sketch18.addConstraint(Sketcher.Constraint("Horizontal", 3))
sketch18.addConstraint(Sketcher.Constraint("Vertical", 4))
sketch18.addConstraint(Sketcher.Constraint("Horizontal", 5))
sketch18.addConstraint(Sketcher.Constraint("Vertical", 6))
sketch18.addConstraint(Sketcher.Constraint("Horizontal", 7))
sketch18.addConstraint(Sketcher.Constraint("Vertical", 8))
sketch18.addConstraint(Sketcher.Constraint("Horizontal", 9))
sketch18.addConstraint(Sketcher.Constraint("Vertical", 10))
sketch18.addConstraint(Sketcher.Constraint("Horizontal", 11))
sketch18.addConstraint(Sketcher.Constraint("Symmetric", 3, 2, 6, 2, -2))
sketch18.addConstraint(Sketcher.Constraint("Symmetric", 1, 2, 8, 2, -2))
sketch18.addConstraint(Sketcher.Constraint("Vertical", 0, 2, 3, 2))
sketch18.addConstraint(Sketcher.Constraint("Vertical", 6, 2, 9, 2))
sketch18.addConstraint(Sketcher.Constraint("DistanceX", 5, 2, 5, 1, Q("0.3 in")))
sketch18.addConstraint(Sketcher.Constraint("DistanceX", 1, 1, 1, 2, Q("0.01 in")))
sketch18.addConstraint(Sketcher.Constraint("DistanceY", 2, 2, 2, 1, Q("0.02 in")))
sketch18.addConstraint(Sketcher.Constraint("DistanceY", 0, 2, 0, 1, Q("0.015 in")))
sketch18.addConstraint(Sketcher.Constraint("DistanceY", 4, 2, 4, 1, Q("0.045 in")))
sketch18.addConstraint(Sketcher.Constraint("DistanceY", -1, 1, 4, 2, Q("0.06 in")))
pocket1 = body17.newObject("PartDesign::Pocket", "Pocket")
pocket1.Profile = sketch18
pocket1.Length = Q("0.135 in")
pocket1.Reversed = True

# Sketch on XY plane
sketch19 = body17.newObject("Sketcher::SketchObject", "Sketch018")
sketch19.AttachmentSupport = (doc.getObject("XY_Plane016"), [""])
sketch19.MapMode = "FlatFace"
sketch19.AttachmentOffset = App.Placement(App.Vector(0, 0, -0.573 * 25.4), App.Rotation())
sketch19.addGeometry(Part.Circle(App.Vector(3.19, 2.92, 0), App.Vector(0, 0, 1), 0.19), False)
sketch19.addGeometry(Part.Circle(App.Vector(1.92, 2.92, 0), App.Vector(0, 0, 1), 0.19), False)
sketch19.addGeometry(Part.Circle(App.Vector(0.65, 2.92, 0), App.Vector(0, 0, 1), 0.19), False)
sketch19.addGeometry(Part.Circle(App.Vector(-0.62, 2.92, 0), App.Vector(0, 0, 1), 0.19), False)
sketch19.addGeometry(Part.Circle(App.Vector(-1.89, 2.92, 0), App.Vector(0, 0, 1), 0.19), False)
sketch19.addGeometry(Part.Circle(App.Vector(-3.16, 2.92, 0), App.Vector(0, 0, 1), 0.19), False)
sketch19.addConstraint(Sketcher.Constraint("Equal", 0, 1))
sketch19.addConstraint(Sketcher.Constraint("Equal", 1, 2))
sketch19.addConstraint(Sketcher.Constraint("Equal", 2, 3))
sketch19.addConstraint(Sketcher.Constraint("Equal", 3, 4))
sketch19.addConstraint(Sketcher.Constraint("Equal", 4, 5))
sketch19.addConstraint(Sketcher.Constraint("Horizontal", 0, 3, 1, 3))
sketch19.addConstraint(Sketcher.Constraint("Horizontal", 1, 3, 2, 3))
sketch19.addConstraint(Sketcher.Constraint("Horizontal", 2, 3, 3, 3))
sketch19.addConstraint(Sketcher.Constraint("Horizontal", 3, 3, 4, 3))
sketch19.addConstraint(Sketcher.Constraint("Horizontal", 4, 3, 5, 3))
sketch19.addConstraint(Sketcher.Constraint("Diameter", 0, Q("0.015 in")))
sketch19.addConstraint(Sketcher.Constraint("DistanceX", 2, 3, 0, 3, Q("0.1 in")))
sketch19.addConstraint(Sketcher.Constraint("DistanceX", 3, 3, 1, 3, Q("0.1 in")))
sketch19.addConstraint(Sketcher.Constraint("DistanceX", 4, 3, 2, 3, Q("0.1 in")))
sketch19.addConstraint(Sketcher.Constraint("DistanceX", 5, 3, 3, 3, Q("0.1 in")))
sketch19.addConstraint(Sketcher.Constraint("DistanceX", 1, 3, 0, 3, Q("0.05 in")))
sketch19.addConstraint(Sketcher.Constraint("DistanceY", -1, 1, 0, 3, Q("0.115 in")))
sketch19.addConstraint(Sketcher.Constraint("DistanceX", -1, 1, 0, 3, 3.189857))
pad18 = body17.newObject("PartDesign::Pad", "Pad017")
pad18.Profile = sketch19
pad18.Length = Q("0.12 in")
pad18.Reversed = True
doc.recompute()

fillet2 = body17.newObject("PartDesign::Fillet", "Fillet001")
fillet2.Base = (pad18, edges_at(pad18, [
    (0, 4.064, -13.792),
    (4.572, 2.667, -13.792),
    (4.572, 4.064, -15.888),
    (-4.572, 4.064, -15.888),
    (-4.572, 2.667, -13.792),
]))
fillet2.Radius = Q("0.005 in")

doc.recompute()
